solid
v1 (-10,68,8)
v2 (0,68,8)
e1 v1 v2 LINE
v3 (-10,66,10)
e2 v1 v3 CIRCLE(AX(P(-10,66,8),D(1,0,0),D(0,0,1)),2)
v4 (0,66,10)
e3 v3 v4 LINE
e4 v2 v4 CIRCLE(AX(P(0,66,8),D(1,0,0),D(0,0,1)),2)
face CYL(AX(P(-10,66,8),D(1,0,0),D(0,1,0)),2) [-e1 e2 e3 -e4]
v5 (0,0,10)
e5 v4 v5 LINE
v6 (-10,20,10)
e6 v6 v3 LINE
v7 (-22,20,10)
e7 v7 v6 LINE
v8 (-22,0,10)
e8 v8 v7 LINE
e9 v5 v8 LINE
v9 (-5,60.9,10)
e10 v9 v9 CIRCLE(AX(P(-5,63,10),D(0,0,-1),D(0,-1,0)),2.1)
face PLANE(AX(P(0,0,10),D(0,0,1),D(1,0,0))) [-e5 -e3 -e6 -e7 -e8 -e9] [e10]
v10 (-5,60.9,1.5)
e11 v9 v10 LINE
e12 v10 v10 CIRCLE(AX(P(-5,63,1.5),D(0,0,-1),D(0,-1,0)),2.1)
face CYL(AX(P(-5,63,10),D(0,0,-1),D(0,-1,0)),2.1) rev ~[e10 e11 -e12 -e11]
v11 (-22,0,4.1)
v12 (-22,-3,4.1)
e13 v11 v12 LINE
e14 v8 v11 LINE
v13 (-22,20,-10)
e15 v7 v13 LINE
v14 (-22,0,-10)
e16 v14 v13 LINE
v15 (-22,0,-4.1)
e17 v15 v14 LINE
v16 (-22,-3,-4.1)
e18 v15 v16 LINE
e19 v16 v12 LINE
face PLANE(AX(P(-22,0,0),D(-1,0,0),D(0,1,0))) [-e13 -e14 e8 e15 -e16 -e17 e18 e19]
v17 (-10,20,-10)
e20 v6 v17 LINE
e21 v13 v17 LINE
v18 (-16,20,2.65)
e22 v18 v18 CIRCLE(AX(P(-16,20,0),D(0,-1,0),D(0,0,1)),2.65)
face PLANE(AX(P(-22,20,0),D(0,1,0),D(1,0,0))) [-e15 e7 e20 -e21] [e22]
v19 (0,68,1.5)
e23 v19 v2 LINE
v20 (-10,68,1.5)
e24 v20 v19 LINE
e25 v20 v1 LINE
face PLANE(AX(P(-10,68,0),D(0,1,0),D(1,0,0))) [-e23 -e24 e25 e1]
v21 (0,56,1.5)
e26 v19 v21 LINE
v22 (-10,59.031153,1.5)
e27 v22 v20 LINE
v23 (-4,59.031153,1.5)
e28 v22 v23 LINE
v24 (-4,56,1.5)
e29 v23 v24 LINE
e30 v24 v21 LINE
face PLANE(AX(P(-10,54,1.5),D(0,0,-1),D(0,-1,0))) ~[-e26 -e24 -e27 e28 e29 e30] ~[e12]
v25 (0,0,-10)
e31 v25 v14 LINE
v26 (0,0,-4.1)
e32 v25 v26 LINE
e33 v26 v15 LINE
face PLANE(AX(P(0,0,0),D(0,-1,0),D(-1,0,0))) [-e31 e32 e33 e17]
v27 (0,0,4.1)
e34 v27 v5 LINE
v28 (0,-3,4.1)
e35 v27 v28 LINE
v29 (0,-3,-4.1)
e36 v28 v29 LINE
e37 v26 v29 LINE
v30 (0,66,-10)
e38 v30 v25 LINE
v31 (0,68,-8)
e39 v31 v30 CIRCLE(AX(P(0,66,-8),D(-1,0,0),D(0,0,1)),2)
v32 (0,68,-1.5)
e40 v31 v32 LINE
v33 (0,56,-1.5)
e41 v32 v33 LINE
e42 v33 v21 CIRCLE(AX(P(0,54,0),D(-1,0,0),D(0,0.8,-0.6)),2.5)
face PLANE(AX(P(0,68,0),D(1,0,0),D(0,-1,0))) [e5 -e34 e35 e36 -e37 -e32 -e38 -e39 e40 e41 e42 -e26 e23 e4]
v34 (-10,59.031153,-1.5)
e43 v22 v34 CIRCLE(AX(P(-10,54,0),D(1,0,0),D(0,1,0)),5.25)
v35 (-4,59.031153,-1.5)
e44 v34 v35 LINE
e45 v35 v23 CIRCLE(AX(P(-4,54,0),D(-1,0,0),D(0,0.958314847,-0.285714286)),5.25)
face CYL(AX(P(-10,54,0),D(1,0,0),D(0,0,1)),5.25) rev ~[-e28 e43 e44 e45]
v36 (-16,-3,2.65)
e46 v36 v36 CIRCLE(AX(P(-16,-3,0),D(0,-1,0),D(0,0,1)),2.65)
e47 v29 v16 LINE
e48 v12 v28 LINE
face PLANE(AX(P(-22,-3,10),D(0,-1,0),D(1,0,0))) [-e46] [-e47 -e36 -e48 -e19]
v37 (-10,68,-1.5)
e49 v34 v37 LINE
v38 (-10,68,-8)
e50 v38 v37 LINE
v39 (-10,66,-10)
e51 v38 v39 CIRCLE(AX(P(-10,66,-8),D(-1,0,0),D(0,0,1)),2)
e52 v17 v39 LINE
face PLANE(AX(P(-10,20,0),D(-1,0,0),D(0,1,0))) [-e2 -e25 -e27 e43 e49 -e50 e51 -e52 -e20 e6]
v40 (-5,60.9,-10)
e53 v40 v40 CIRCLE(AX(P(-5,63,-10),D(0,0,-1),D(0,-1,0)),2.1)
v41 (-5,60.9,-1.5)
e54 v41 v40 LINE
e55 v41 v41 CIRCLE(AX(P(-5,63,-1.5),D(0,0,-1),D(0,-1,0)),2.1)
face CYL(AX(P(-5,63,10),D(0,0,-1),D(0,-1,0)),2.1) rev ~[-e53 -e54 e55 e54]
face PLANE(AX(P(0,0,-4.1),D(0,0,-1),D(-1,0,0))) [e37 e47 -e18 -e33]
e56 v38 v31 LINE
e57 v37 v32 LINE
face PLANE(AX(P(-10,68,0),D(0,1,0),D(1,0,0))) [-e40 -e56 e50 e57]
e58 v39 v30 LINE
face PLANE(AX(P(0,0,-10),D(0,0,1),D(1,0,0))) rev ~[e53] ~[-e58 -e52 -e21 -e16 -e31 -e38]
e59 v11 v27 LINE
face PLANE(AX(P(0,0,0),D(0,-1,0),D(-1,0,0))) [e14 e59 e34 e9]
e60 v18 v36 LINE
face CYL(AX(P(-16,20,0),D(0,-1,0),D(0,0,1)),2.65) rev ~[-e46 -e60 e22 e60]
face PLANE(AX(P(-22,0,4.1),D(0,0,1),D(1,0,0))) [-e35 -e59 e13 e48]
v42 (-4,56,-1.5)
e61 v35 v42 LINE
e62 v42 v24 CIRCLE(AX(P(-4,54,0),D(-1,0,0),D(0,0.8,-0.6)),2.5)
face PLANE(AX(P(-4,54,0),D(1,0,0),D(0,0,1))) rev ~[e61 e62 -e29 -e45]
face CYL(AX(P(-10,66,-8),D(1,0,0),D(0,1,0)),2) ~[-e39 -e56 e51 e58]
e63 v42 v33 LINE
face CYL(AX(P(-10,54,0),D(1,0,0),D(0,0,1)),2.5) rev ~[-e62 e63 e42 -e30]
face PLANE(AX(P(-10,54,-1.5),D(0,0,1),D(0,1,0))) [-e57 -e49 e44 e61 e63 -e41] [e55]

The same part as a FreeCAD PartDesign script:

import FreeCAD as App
import Part
import Sketcher
from FreeCAD import Vector
Q = App.Units.Quantity


def edges_at(feature, points):
    """Names of the edges that pass closest to the given points."""
    edges = feature.Shape.Edges
    near = lambda p: min(range(len(edges)), key=lambda i: edges[i].distToShape(Part.Vertex(*p))[0])
    return sorted({f"Edge{near(p) + 1}" for p in points})

doc = App.newDocument("Part")
body = doc.addObject("PartDesign::Body", "Body")

# Sketch on XY plane
sketch1 = doc.addObject("Sketcher::SketchObject", "Sketch")
body.addObject(sketch1)
sketch1.AttachmentSupport = (doc.XY_Plane, [""])
sketch1.MapMode = "FlatFace"
sketch1.addGeometry([
    Part.LineSegment(Vector(-22, 0, 0), Vector(0, 0, 0)),  # 0
    Part.LineSegment(Vector(0, 0, 0), Vector(0, 68, 0)),  # 1
    Part.LineSegment(Vector(0, 68, 0), Vector(-10, 68, 0)),  # 2
    Part.LineSegment(Vector(-10, 68, 0), Vector(-10, 20, 0)),  # 3
    Part.LineSegment(Vector(-10, 20, 0), Vector(-22, 20, 0)),  # 4
    Part.LineSegment(Vector(-22, 20, 0), Vector(-22, 0, 0)),  # 5
], False)
sketch1.addConstraint([
    Sketcher.Constraint("Coincident", 0, 2, 1, 1),
    Sketcher.Constraint("Coincident", 1, 2, 2, 1),
    Sketcher.Constraint("Coincident", 2, 2, 3, 1),
    Sketcher.Constraint("Coincident", 3, 2, 4, 1),
    Sketcher.Constraint("Coincident", 4, 2, 5, 1),
    Sketcher.Constraint("Coincident", 5, 2, 0, 1),
    Sketcher.Constraint("Horizontal", 0),
    Sketcher.Constraint("Vertical", 1),
    Sketcher.Constraint("Horizontal", 2),
    Sketcher.Constraint("Vertical", 3),
    Sketcher.Constraint("Horizontal", 4),
    Sketcher.Constraint("Vertical", 5),
    Sketcher.Constraint("Coincident", 0, 2, -1, 1),
    Sketcher.Constraint("DistanceX", 0, 1, 0, 2, Q("22 mm")),
    Sketcher.Constraint("DistanceX", 2, 2, 2, 1, Q("10 mm")),
    Sketcher.Constraint("DistanceY", 1, 1, 1, 2, Q("68 mm")),
    Sketcher.Constraint("DistanceY", 5, 2, 5, 1, Q("20 mm")),
])
pad1 = doc.addObject("PartDesign::Pad", "Pad")
body.addObject(pad1)
pad1.Profile = sketch1
pad1.Length = 20
pad1.Midplane = True

# Sketch on XZ plane
sketch2 = doc.addObject("Sketcher::SketchObject", "Sketch001")
body.addObject(sketch2)
sketch2.AttachmentSupport = (doc.XZ_Plane, [""])
sketch2.MapMode = "FlatFace"
sketch2.addGeometry([
    Part.LineSegment(Vector(0, 4, 0), Vector(-22, 4, 0)),
    Part.LineSegment(Vector(-22, 4, 0), Vector(-22, -4, 0)),
    Part.LineSegment(Vector(-22, -4, 0), Vector(0, -4, 0)),
    Part.LineSegment(Vector(0, -4, 0), Vector(0, 4, 0)),
], False)
sketch2.addConstraint([
    Sketcher.Constraint("Coincident", 0, 2, 1, 1),
    Sketcher.Constraint("Coincident", 1, 2, 2, 1),
    Sketcher.Constraint("Coincident", 2, 2, 3, 1),
    Sketcher.Constraint("Coincident", 3, 2, 0, 1),
    Sketcher.Constraint("Horizontal", 0),
    Sketcher.Constraint("Vertical", 1),
    Sketcher.Constraint("Horizontal", 2),
    Sketcher.Constraint("Vertical", 3),
    Sketcher.Constraint("Symmetric", 2, 2, 3, 2, -1, 1),
    Sketcher.Constraint("DistanceY", 1, 2, 1, 1, Q("8.2 mm")),
    Sketcher.Constraint("DistanceX", 0, 2, 0, 1, Q("22 mm")),
])
pad2 = doc.addObject("PartDesign::Pad", "Pad001")
body.addObject(pad2)
pad2.Profile = sketch2
pad2.Length = 3

# Sketch on XZ plane
sketch3 = doc.addObject("Sketcher::SketchObject", "Sketch002")
body.addObject(sketch3)
sketch3.AttachmentSupport = (doc.XZ_Plane, [""])
sketch3.MapMode = "FlatFace"
sketch3.AttachmentOffset = App.Placement(Vector(0, 0, -20), App.Rotation())
sketch3.addGeometry(Part.Circle(Vector(-16, 0, 0), Vector(0, 0, 1), 2.6), False)
sketch3.addConstraint([
    Sketcher.Constraint("PointOnObject", 0, 3, -1),
    Sketcher.Constraint("Diameter", 0, Q("5.3 mm")),
    Sketcher.Constraint("DistanceX", 0, 3, -1, 1, Q("16 mm")),
])
doc.recompute()
hole = doc.addObject("PartDesign::Hole", "Hole")
body.addObject(hole)
hole.Profile = sketch3
hole.ThreadType = "None"
hole.Diameter = 5.3
hole.DepthType = "ThroughAll"
hole.Reversed = True

# Sketch on YZ plane
sketch4 = doc.addObject("Sketcher::SketchObject", "Sketch003")
body.addObject(sketch4)
sketch4.AttachmentSupport = (doc.YZ_Plane, [""])
sketch4.MapMode = "FlatFace"
sketch4.AttachmentOffset = App.Placement(Vector(0, 0, -10), App.Rotation())
sketch4.addGeometry(Part.Circle(Vector(54, 0, 0), Vector(0, 0, 1), 2.5), False)
sketch4.addConstraint([
    Sketcher.Constraint("PointOnObject", 0, 3, -1),
    Sketcher.Constraint("Diameter", 0, Q("5 mm")),
    Sketcher.Constraint("DistanceX", -1, 1, 0, 3, Q("54 mm")),
])
doc.recompute()
hole2 = doc.addObject("PartDesign::Hole", "Hole001")
body.addObject(hole2)
hole2.Profile = sketch4
hole2.ThreadType = "None"
hole2.Diameter = 5
hole2.DepthType = "ThroughAll"
hole2.Reversed = True
doc.recompute()

fillet = doc.addObject("PartDesign::Fillet", "Fillet")
body.addObject(fillet)
fillet.Base = (hole2, edges_at(hole2, [(-5, 68, -10)]))
fillet.Radius = 2
doc.recompute()

fillet2 = doc.addObject("PartDesign::Fillet", "Fillet001")
body.addObject(fillet2)
fillet2.Base = (fillet, edges_at(fillet, [(-5, 68, 10)]))
fillet2.Radius = 2

# Sketch on YZ plane
sketch5 = doc.addObject("Sketcher::SketchObject", "Sketch004")
body.addObject(sketch5)
sketch5.AttachmentSupport = (doc.YZ_Plane, [""])
sketch5.MapMode = "FlatFace"
sketch5.AttachmentOffset = App.Placement(Vector(0, 0, -10), App.Rotation())
sketch5.addGeometry(Part.Circle(Vector(54, 0, 0), Vector(0, 0, 1), 5), False)
sketch5.addConstraint([
    Sketcher.Constraint("PointOnObject", 0, 3, -1),
    Sketcher.Constraint("Diameter", 0, Q("10.5 mm")),
    Sketcher.Constraint("DistanceX", -1, 1, 0, 3, Q("54 mm")),
])
doc.recompute()
hole3 = doc.addObject("PartDesign::Hole", "Hole002")
body.addObject(hole3)
hole3.Profile = sketch5
hole3.ThreadType = "None"
hole3.Diameter = 10.5
hole3.DepthType = "Dimension"
hole3.Depth = 6
hole3.DrillPoint = "Flat"
hole3.Reversed = True

# Sketch on YZ plane
sketch6 = doc.addObject("Sketcher::SketchObject", "Sketch005")
body.addObject(sketch6)
sketch6.AttachmentSupport = (doc.YZ_Plane, [""])
sketch6.MapMode = "FlatFace"
sketch6.AttachmentOffset = App.Placement(Vector(0, 0, -10), App.Rotation())
sketch6.addGeometry([
    Part.LineSegment(Vector(54, -1.5, 0), Vector(54, 0, 0)),
    Part.LineSegment(Vector(54, 0, 0), Vector(70.8, 0, 0)),
    Part.LineSegment(Vector(70.8, 0, 0), Vector(70.8, -1.5, 0)),
    Part.LineSegment(Vector(70.8, -1.5, 0), Vector(54, -1.5, 0)),
], False)
sketch6.addConstraint([
    Sketcher.Constraint("Coincident", 0, 2, 1, 1),
    Sketcher.Constraint("Coincident", 1, 2, 2, 1),
    Sketcher.Constraint("Coincident", 2, 2, 3, 1),
    Sketcher.Constraint("Coincident", 3, 2, 0, 1),
    Sketcher.Constraint("Vertical", 0),
    Sketcher.Constraint("Horizontal", 1),
    Sketcher.Constraint("Vertical", 2),
    Sketcher.Constraint("Horizontal", 3),
    Sketcher.Constraint("PointOnObject", 0, 2, -1),
    Sketcher.Constraint("DistanceX", -1, 1, 0, 2, Q("54 mm")),
    Sketcher.Constraint("DistanceX", 1, 1, 1, 2, Q("16.8033 mm")),
    Sketcher.Constraint("DistanceY", 0, 1, 0, 2, Q("1.5 mm")),
])
pocket1 = doc.addObject("PartDesign::Pocket", "Pocket")
body.addObject(pocket1)
pocket1.Profile = sketch6
pocket1.Type = "ThroughAll"
pocket1.Reversed = True
doc.recompute()

mirrored = doc.addObject("PartDesign::Mirrored", "Mirrored")
body.addObject(mirrored)
mirrored.Originals = [pocket1]
mirrored.MirrorPlane = (doc.XY_Plane, [""])
body.Tip = mirrored

# Sketch on XY plane
sketch7 = doc.addObject("Sketcher::SketchObject", "Sketch006")
body.addObject(sketch7)
sketch7.AttachmentSupport = (doc.XY_Plane, [""])
sketch7.MapMode = "FlatFace"
sketch7.AttachmentOffset = App.Placement(Vector(0, 0, 10), App.Rotation())
sketch7.addGeometry(Part.Circle(Vector(-5, 63, 0), Vector(0, 0, 1), 2.1), False)
sketch7.addConstraint([
    Sketcher.Constraint("Diameter", 0, Q("4.2 mm")),
    Sketcher.Constraint("DistanceX", 0, 3, -1, 1, Q("5 mm")),
    Sketcher.Constraint("DistanceY", -1, 1, 0, 3, Q("63 mm")),
])
doc.recompute()
hole4 = doc.addObject("PartDesign::Hole", "Hole003")
body.addObject(hole4)
hole4.Profile = sketch7
hole4.ThreadType = "None"
hole4.Diameter = 4.2
hole4.DepthType = "ThroughAll"

doc.recompute()
